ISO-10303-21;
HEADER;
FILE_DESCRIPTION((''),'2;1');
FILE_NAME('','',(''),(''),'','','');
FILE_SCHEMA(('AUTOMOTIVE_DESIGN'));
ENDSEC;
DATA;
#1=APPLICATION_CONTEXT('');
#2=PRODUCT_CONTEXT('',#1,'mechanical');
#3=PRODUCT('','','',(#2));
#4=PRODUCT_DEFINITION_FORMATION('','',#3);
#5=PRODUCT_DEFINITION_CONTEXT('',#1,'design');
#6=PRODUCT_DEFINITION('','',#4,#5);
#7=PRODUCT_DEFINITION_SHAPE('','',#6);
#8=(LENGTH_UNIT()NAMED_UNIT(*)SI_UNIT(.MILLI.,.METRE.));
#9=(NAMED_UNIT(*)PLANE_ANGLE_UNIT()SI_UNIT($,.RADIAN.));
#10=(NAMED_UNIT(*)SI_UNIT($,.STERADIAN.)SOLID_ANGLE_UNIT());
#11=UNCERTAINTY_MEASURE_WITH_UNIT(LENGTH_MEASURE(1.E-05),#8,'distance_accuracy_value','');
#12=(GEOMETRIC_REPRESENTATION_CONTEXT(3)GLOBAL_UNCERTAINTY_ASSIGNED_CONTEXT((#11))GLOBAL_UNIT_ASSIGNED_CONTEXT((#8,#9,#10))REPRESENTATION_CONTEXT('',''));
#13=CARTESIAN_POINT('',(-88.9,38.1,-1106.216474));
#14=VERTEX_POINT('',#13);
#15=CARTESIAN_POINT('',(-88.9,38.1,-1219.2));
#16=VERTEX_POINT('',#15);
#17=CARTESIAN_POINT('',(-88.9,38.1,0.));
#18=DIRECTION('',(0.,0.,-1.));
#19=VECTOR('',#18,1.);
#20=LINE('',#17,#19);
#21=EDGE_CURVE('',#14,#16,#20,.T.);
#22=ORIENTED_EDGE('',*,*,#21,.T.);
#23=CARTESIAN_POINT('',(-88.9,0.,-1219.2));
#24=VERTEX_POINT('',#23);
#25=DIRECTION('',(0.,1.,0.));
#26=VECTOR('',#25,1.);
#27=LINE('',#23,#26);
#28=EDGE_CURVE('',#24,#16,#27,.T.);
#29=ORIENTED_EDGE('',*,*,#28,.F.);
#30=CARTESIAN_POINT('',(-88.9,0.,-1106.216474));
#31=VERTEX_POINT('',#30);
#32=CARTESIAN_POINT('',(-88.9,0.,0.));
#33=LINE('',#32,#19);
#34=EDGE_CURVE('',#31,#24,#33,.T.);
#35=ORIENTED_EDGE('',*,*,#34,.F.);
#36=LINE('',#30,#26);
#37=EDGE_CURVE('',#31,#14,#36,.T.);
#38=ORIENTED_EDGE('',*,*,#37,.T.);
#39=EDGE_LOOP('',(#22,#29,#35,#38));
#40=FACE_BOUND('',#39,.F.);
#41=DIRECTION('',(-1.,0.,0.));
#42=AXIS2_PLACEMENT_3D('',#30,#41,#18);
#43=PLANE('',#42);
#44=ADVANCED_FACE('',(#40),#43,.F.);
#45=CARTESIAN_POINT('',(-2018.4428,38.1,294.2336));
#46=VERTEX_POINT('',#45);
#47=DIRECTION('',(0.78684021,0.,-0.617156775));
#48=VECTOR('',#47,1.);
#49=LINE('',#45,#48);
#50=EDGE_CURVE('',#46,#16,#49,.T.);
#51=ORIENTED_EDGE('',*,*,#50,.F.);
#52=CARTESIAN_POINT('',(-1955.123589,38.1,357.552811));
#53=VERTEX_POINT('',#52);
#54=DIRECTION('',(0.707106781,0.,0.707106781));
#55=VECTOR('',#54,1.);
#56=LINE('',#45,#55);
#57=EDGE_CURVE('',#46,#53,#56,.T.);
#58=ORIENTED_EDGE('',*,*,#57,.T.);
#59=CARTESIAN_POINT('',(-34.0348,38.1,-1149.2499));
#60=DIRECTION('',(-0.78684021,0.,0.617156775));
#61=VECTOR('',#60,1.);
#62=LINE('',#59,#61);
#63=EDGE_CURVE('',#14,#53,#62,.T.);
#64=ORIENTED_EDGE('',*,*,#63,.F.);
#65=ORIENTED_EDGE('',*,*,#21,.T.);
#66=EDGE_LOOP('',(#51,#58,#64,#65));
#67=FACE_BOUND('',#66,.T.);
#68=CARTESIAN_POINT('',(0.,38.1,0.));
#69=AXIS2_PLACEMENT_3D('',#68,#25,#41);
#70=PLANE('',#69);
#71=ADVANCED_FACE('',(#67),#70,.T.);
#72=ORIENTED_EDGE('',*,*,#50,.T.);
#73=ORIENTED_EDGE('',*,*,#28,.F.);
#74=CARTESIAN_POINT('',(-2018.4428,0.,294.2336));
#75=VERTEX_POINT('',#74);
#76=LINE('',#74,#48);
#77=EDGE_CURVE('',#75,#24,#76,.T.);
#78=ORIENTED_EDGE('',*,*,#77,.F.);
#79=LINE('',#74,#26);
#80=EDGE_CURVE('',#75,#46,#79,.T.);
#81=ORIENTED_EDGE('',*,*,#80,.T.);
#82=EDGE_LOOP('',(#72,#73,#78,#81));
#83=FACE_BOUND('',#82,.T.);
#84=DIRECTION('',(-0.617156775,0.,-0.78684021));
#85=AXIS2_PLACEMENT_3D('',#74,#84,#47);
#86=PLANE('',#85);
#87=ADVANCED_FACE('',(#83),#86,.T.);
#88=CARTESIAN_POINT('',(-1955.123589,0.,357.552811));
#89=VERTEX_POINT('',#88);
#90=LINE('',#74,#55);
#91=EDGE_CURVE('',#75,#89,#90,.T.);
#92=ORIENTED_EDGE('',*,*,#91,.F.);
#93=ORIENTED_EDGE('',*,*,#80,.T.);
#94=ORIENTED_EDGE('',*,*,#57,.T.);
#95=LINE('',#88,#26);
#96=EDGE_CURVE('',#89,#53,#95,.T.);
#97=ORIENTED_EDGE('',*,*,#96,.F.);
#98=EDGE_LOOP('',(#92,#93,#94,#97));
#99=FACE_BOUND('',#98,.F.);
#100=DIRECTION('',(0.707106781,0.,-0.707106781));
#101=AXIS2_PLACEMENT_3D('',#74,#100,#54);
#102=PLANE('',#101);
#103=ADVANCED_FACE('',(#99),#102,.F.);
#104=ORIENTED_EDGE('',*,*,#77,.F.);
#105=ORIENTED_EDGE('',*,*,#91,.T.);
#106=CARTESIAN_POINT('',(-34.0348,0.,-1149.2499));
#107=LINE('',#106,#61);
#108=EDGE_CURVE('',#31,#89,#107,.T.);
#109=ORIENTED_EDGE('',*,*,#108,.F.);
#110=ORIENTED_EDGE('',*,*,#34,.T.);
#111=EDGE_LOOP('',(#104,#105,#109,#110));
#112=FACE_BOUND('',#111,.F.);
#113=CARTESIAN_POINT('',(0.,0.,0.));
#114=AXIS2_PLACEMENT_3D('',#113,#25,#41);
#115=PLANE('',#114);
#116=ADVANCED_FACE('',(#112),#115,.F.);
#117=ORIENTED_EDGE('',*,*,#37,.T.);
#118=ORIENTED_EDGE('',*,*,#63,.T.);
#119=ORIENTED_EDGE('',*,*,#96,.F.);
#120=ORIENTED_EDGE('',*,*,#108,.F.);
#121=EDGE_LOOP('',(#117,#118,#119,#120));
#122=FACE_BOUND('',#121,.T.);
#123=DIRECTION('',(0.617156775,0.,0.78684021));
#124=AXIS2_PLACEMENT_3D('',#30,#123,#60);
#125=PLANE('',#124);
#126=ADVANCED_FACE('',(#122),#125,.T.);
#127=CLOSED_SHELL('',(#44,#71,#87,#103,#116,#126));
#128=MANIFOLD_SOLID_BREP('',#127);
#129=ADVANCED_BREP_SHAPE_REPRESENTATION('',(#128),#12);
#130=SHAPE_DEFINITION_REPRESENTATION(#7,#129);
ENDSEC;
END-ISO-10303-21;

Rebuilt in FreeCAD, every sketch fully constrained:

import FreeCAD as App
import Part
import Sketcher
from FreeCAD import Vector
Q = App.Units.Quantity


def add_polygon(sketch, points):
    """Adds a closed chain of lines whose ends are joined by coincident constraints."""
    first, n = sketch.GeometryCount, len(points)
    for a, b in zip(points, points[1:] + points[:1]):
        sketch.addGeometry(Part.LineSegment(App.Vector(*a, 0), App.Vector(*b, 0)), False)
    for i in range(n):
        sketch.addConstraint(Sketcher.Constraint("Coincident", first + i, 2, first + (i + 1) % n, 1))

doc = App.newDocument("Part")
body = doc.addObject("PartDesign::Body", "Body")

sketch1 = body.newObject("Sketcher::SketchObject", "Sketch")
sketch1.AttachmentSupport = (doc.getObject("XZ_Plane"), [""])
sketch1.MapMode = "FlatFace"
add_polygon(sketch1, [(-89, -1106), (-89, -1219), (-2018, 294), (-1955, 358)])
sketch1.addConstraint(Sketcher.Constraint("Vertical", 0))
sketch1.addConstraint(Sketcher.Constraint("Parallel", 1, 3))
sketch1.addConstraint(Sketcher.Constraint("DistanceY", 0, 2, -1, 1, Q("48 in")))
sketch1.addConstraint(Sketcher.Constraint("Angle", 2, Q("45 deg")))
sketch1.addConstraint(Sketcher.Constraint("DistanceX", 0, 2, -1, 1, Q("3.5 in")))
sketch1.addConstraint(Sketcher.Constraint("Angle", 1, Q("141.8912 deg")))
sketch1.addConstraint(Sketcher.Constraint("DistanceY", -1, 1, 1, 2, Q("11.584 in")))
sketch1.addConstraint(Sketcher.Constraint("DistanceY", 0, 2, 0, 1, 112.9835))
pad1 = body.newObject("PartDesign::Pad", "Pad")
pad1.Profile = sketch1
pad1.Length = Q("1.5 in")
pad1.Reversed = True

doc.recompute()
